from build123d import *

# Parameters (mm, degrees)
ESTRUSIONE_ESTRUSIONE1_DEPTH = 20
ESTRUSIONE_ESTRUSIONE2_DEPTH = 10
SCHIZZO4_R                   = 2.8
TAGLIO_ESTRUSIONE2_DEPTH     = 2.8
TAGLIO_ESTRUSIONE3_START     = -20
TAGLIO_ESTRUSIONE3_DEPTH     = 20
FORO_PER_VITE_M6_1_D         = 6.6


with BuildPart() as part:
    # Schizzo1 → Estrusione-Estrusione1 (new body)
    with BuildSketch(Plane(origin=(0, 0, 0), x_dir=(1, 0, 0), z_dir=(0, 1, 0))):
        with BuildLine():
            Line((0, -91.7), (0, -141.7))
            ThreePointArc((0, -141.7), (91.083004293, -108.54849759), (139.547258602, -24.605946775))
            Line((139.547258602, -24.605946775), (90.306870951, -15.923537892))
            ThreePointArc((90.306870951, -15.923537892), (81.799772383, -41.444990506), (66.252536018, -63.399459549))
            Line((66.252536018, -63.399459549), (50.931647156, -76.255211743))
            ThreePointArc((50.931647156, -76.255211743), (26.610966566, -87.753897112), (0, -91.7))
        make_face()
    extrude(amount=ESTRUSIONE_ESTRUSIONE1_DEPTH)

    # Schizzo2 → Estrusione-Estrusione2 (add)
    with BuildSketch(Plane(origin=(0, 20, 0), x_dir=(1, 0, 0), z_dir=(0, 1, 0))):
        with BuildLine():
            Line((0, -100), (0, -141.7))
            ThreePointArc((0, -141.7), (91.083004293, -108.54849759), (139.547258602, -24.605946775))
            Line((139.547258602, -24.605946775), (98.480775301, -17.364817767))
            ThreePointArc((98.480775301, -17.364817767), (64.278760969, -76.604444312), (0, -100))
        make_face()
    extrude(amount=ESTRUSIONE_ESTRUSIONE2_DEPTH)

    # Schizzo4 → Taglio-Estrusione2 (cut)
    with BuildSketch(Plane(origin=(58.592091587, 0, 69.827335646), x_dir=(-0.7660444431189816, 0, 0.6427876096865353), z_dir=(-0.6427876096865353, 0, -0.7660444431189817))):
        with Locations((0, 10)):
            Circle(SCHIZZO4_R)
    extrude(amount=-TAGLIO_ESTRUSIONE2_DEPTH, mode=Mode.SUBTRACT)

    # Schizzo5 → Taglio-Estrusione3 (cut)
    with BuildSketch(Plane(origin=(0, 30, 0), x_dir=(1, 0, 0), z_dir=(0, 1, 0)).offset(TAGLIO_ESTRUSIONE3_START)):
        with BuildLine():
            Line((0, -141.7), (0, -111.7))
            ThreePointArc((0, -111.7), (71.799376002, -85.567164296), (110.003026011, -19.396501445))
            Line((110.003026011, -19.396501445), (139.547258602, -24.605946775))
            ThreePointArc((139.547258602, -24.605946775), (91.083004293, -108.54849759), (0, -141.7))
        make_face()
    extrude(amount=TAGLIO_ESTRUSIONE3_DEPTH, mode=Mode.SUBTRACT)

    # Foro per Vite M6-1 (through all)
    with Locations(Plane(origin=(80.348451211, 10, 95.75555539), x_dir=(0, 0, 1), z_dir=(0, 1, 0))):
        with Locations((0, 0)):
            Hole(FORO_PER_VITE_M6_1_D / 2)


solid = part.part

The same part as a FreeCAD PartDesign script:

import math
import FreeCAD as App
import Part
import Sketcher
Q = App.Units.Quantity

doc = App.newDocument("Part")
body = doc.addObject("PartDesign::Body", "Body")

sketch1 = body.newObject("Sketcher::SketchObject", "Sketch")
sketch1.AttachmentSupport = (doc.getObject("XZ_Plane"), [""])
sketch1.MapMode = "FlatFace"
sketch1.addGeometry(Part.LineSegment(App.Vector(0, 92, 0), App.Vector(0, 142, 0)), False)
sketch1.addGeometry(Part.ArcOfCircle(Part.Circle(App.Vector(0, 0, 0), App.Vector(0, 0, 1), 142), math.radians(10), math.radians(90)), False)
sketch1.addGeometry(Part.LineSegment(App.Vector(140, 25, 0), App.Vector(90, 16, 0)), False)
sketch1.addGeometry(Part.ArcOfCircle(Part.Circle(App.Vector(0, 0, 0), App.Vector(0, 0, 1), 92), math.radians(10), math.radians(44)), False)
sketch1.addGeometry(Part.LineSegment(App.Vector(66, 63, 0), App.Vector(51, 76, 0)), False)
sketch1.addGeometry(Part.ArcOfCircle(Part.Circle(App.Vector(0, 0, 0), App.Vector(0, 0, 1), 92), math.radians(56), math.radians(90)), False)
sketch1.addConstraint(Sketcher.Constraint("Coincident", 0, 2, 1, 2))
sketch1.addConstraint(Sketcher.Constraint("Coincident", 1, 1, 2, 1))
sketch1.addConstraint(Sketcher.Constraint("Coincident", 2, 2, 3, 1))
sketch1.addConstraint(Sketcher.Constraint("Coincident", 3, 2, 4, 1))
sketch1.addConstraint(Sketcher.Constraint("Coincident", 4, 2, 5, 1))
sketch1.addConstraint(Sketcher.Constraint("Coincident", 5, 2, 0, 1))
sketch1.addConstraint(Sketcher.Constraint("Vertical", 0))
sketch1.addConstraint(Sketcher.Constraint("Coincident", 1, 3, -1, 1))
sketch1.addConstraint(Sketcher.Constraint("Coincident", 3, 3, -1, 1))
sketch1.addConstraint(Sketcher.Constraint("Coincident", 5, 3, -1, 1))
sketch1.addConstraint(Sketcher.Constraint("Equal", 3, 5))
sketch1.addConstraint(Sketcher.Constraint("PointOnObject", 0, 2, -2))
sketch1.addConstraint(Sketcher.Constraint("Radius", 1, 141.7))
sketch1.addConstraint(Sketcher.Constraint("Radius", 3, 91.7))
sketch1.addConstraint(Sketcher.Constraint("Angle", 2, Q("-170 deg")))
sketch1.addConstraint(Sketcher.Constraint("Angle", 4, Q("140 deg")))
sketch1.addConstraint(Sketcher.Constraint("Distance", 4, 20.0))
sketch1.addConstraint(Sketcher.Constraint("DistanceX", -1, 1, 1, 1, 139.547259))
pad1 = body.newObject("PartDesign::Pad", "Pad")
pad1.Profile = sketch1
pad1.Length = 20
pad1.Reversed = True

sketch2 = body.newObject("Sketcher::SketchObject", "Sketch001")
sketch2.AttachmentSupport = (doc.getObject("XZ_Plane"), [""])
sketch2.MapMode = "FlatFace"
sketch2.AttachmentOffset = App.Placement(App.Vector(0, 0, -20), App.Rotation())
sketch2.addGeometry(Part.LineSegment(App.Vector(0, 100, 0), App.Vector(0, 142, 0)), False)
sketch2.addGeometry(Part.ArcOfCircle(Part.Circle(App.Vector(0, 0, 0), App.Vector(0, 0, 1), 142), math.radians(10), math.radians(90)), False)
sketch2.addGeometry(Part.LineSegment(App.Vector(140, 25, 0), App.Vector(98, 17, 0)), False)
sketch2.addGeometry(Part.ArcOfCircle(Part.Circle(App.Vector(0, 0, 0), App.Vector(0, 0, 1), 100), math.radians(10), math.radians(90)), False)
sketch2.addConstraint(Sketcher.Constraint("Coincident", 0, 2, 1, 2))
sketch2.addConstraint(Sketcher.Constraint("Coincident", 1, 1, 2, 1))
sketch2.addConstraint(Sketcher.Constraint("Coincident", 2, 2, 3, 1))
sketch2.addConstraint(Sketcher.Constraint("Coincident", 3, 2, 0, 1))
sketch2.addConstraint(Sketcher.Constraint("Vertical", 0))
sketch2.addConstraint(Sketcher.Constraint("Coincident", 1, 3, -1, 1))
sketch2.addConstraint(Sketcher.Constraint("Coincident", 3, 3, -1, 1))
sketch2.addConstraint(Sketcher.Constraint("PointOnObject", 0, 2, -2))
sketch2.addConstraint(Sketcher.Constraint("Radius", 3, 100.0))
sketch2.addConstraint(Sketcher.Constraint("Radius", 1, 141.7))
sketch2.addConstraint(Sketcher.Constraint("Angle", 2, Q("-170 deg")))
sketch2.addConstraint(Sketcher.Constraint("DistanceX", -1, 1, 1, 1, 139.547259))
pad2 = body.newObject("PartDesign::Pad", "Pad001")
pad2.Profile = sketch2
pad2.Length = 10
pad2.Reversed = True

sketch3 = body.newObject("Sketcher::SketchObject", "Sketch002")
sketch3.Placement = App.Placement(App.Vector(58.592092, 0, 69.827336), App.Rotation(App.Vector(-0.766044443, 0, 0.64278761), App.Vector(0, 1, 0), App.Vector(-0.64278761, 0, -0.766044443), "ZXY"))
sketch3.addGeometry(Part.Circle(App.Vector(0, 10, 0), App.Vector(0, 0, 1), 2.8), False)
sketch3.addConstraint(Sketcher.Constraint("PointOnObject", 0, 3, -2))
sketch3.addConstraint(Sketcher.Constraint("Diameter", 0, 5.6))
sketch3.addConstraint(Sketcher.Constraint("DistanceY", -1, 1, 0, 3, 10.0))
pocket1 = body.newObject("PartDesign::Pocket", "Pocket")
pocket1.Profile = sketch3
pocket1.Length = 2.8

sketch4 = body.newObject("Sketcher::SketchObject", "Sketch003")
sketch4.AttachmentSupport = (doc.getObject("XZ_Plane"), [""])
sketch4.MapMode = "FlatFace"
sketch4.AttachmentOffset = App.Placement(App.Vector(0, 0, -10), App.Rotation())
sketch4.addGeometry(Part.LineSegment(App.Vector(0, 112, 0), App.Vector(0, 142, 0)), False)
sketch4.addGeometry(Part.ArcOfCircle(Part.Circle(App.Vector(0, 0, 0), App.Vector(0, 0, 1), 142), math.radians(10), math.radians(90)), False)
sketch4.addGeometry(Part.LineSegment(App.Vector(140, 25, 0), App.Vector(110, 19, 0)), False)
sketch4.addGeometry(Part.ArcOfCircle(Part.Circle(App.Vector(0, 0, 0), App.Vector(0, 0, 1), 112), math.radians(10), math.radians(90)), False)
sketch4.addConstraint(Sketcher.Constraint("Coincident", 0, 2, 1, 2))
sketch4.addConstraint(Sketcher.Constraint("Coincident", 1, 1, 2, 1))
sketch4.addConstraint(Sketcher.Constraint("Coincident", 2, 2, 3, 1))
sketch4.addConstraint(Sketcher.Constraint("Coincident", 3, 2, 0, 1))
sketch4.addConstraint(Sketcher.Constraint("Vertical", 0))
sketch4.addConstraint(Sketcher.Constraint("Coincident", 1, 3, -1, 1))
sketch4.addConstraint(Sketcher.Constraint("Coincident", 3, 3, -1, 1))
sketch4.addConstraint(Sketcher.Constraint("PointOnObject", 0, 2, -2))
sketch4.addConstraint(Sketcher.Constraint("Radius", 1, 141.7))
sketch4.addConstraint(Sketcher.Constraint("Radius", 3, 111.7))
sketch4.addConstraint(Sketcher.Constraint("Angle", 2, Q("-170 deg")))
sketch4.addConstraint(Sketcher.Constraint("DistanceY", -1, 1, 2, 2, 19.396501))
pocket2 = body.newObject("PartDesign::Pocket", "Pocket001")
pocket2.Profile = sketch4
pocket2.Length = 20

sketch5 = body.newObject("Sketcher::SketchObject", "Sketch004")
sketch5.AttachmentSupport = (doc.getObject("XZ_Plane"), [""])
sketch5.MapMode = "FlatFace"
sketch5.AttachmentOffset = App.Placement(App.Vector(0, 0, -10), App.Rotation())
sketch5.addGeometry(Part.Circle(App.Vector(80.3, 95.8, 0), App.Vector(0, 0, 1), 3.3), False)
sketch5.addConstraint(Sketcher.Constraint("Diameter", 0, 6.6))
sketch5.addConstraint(Sketcher.Constraint("DistanceX", -1, 1, 0, 3, 80.348451))
sketch5.addConstraint(Sketcher.Constraint("DistanceY", -1, 1, 0, 3, 95.755555))
doc.recompute()
hole = body.newObject("PartDesign::Hole", "Hole")
hole.Profile = sketch5
hole.ThreadType = "None"
hole.Diameter = 6.6
hole.DepthType = "ThroughAll"
hole.Reversed = True

doc.recompute()
